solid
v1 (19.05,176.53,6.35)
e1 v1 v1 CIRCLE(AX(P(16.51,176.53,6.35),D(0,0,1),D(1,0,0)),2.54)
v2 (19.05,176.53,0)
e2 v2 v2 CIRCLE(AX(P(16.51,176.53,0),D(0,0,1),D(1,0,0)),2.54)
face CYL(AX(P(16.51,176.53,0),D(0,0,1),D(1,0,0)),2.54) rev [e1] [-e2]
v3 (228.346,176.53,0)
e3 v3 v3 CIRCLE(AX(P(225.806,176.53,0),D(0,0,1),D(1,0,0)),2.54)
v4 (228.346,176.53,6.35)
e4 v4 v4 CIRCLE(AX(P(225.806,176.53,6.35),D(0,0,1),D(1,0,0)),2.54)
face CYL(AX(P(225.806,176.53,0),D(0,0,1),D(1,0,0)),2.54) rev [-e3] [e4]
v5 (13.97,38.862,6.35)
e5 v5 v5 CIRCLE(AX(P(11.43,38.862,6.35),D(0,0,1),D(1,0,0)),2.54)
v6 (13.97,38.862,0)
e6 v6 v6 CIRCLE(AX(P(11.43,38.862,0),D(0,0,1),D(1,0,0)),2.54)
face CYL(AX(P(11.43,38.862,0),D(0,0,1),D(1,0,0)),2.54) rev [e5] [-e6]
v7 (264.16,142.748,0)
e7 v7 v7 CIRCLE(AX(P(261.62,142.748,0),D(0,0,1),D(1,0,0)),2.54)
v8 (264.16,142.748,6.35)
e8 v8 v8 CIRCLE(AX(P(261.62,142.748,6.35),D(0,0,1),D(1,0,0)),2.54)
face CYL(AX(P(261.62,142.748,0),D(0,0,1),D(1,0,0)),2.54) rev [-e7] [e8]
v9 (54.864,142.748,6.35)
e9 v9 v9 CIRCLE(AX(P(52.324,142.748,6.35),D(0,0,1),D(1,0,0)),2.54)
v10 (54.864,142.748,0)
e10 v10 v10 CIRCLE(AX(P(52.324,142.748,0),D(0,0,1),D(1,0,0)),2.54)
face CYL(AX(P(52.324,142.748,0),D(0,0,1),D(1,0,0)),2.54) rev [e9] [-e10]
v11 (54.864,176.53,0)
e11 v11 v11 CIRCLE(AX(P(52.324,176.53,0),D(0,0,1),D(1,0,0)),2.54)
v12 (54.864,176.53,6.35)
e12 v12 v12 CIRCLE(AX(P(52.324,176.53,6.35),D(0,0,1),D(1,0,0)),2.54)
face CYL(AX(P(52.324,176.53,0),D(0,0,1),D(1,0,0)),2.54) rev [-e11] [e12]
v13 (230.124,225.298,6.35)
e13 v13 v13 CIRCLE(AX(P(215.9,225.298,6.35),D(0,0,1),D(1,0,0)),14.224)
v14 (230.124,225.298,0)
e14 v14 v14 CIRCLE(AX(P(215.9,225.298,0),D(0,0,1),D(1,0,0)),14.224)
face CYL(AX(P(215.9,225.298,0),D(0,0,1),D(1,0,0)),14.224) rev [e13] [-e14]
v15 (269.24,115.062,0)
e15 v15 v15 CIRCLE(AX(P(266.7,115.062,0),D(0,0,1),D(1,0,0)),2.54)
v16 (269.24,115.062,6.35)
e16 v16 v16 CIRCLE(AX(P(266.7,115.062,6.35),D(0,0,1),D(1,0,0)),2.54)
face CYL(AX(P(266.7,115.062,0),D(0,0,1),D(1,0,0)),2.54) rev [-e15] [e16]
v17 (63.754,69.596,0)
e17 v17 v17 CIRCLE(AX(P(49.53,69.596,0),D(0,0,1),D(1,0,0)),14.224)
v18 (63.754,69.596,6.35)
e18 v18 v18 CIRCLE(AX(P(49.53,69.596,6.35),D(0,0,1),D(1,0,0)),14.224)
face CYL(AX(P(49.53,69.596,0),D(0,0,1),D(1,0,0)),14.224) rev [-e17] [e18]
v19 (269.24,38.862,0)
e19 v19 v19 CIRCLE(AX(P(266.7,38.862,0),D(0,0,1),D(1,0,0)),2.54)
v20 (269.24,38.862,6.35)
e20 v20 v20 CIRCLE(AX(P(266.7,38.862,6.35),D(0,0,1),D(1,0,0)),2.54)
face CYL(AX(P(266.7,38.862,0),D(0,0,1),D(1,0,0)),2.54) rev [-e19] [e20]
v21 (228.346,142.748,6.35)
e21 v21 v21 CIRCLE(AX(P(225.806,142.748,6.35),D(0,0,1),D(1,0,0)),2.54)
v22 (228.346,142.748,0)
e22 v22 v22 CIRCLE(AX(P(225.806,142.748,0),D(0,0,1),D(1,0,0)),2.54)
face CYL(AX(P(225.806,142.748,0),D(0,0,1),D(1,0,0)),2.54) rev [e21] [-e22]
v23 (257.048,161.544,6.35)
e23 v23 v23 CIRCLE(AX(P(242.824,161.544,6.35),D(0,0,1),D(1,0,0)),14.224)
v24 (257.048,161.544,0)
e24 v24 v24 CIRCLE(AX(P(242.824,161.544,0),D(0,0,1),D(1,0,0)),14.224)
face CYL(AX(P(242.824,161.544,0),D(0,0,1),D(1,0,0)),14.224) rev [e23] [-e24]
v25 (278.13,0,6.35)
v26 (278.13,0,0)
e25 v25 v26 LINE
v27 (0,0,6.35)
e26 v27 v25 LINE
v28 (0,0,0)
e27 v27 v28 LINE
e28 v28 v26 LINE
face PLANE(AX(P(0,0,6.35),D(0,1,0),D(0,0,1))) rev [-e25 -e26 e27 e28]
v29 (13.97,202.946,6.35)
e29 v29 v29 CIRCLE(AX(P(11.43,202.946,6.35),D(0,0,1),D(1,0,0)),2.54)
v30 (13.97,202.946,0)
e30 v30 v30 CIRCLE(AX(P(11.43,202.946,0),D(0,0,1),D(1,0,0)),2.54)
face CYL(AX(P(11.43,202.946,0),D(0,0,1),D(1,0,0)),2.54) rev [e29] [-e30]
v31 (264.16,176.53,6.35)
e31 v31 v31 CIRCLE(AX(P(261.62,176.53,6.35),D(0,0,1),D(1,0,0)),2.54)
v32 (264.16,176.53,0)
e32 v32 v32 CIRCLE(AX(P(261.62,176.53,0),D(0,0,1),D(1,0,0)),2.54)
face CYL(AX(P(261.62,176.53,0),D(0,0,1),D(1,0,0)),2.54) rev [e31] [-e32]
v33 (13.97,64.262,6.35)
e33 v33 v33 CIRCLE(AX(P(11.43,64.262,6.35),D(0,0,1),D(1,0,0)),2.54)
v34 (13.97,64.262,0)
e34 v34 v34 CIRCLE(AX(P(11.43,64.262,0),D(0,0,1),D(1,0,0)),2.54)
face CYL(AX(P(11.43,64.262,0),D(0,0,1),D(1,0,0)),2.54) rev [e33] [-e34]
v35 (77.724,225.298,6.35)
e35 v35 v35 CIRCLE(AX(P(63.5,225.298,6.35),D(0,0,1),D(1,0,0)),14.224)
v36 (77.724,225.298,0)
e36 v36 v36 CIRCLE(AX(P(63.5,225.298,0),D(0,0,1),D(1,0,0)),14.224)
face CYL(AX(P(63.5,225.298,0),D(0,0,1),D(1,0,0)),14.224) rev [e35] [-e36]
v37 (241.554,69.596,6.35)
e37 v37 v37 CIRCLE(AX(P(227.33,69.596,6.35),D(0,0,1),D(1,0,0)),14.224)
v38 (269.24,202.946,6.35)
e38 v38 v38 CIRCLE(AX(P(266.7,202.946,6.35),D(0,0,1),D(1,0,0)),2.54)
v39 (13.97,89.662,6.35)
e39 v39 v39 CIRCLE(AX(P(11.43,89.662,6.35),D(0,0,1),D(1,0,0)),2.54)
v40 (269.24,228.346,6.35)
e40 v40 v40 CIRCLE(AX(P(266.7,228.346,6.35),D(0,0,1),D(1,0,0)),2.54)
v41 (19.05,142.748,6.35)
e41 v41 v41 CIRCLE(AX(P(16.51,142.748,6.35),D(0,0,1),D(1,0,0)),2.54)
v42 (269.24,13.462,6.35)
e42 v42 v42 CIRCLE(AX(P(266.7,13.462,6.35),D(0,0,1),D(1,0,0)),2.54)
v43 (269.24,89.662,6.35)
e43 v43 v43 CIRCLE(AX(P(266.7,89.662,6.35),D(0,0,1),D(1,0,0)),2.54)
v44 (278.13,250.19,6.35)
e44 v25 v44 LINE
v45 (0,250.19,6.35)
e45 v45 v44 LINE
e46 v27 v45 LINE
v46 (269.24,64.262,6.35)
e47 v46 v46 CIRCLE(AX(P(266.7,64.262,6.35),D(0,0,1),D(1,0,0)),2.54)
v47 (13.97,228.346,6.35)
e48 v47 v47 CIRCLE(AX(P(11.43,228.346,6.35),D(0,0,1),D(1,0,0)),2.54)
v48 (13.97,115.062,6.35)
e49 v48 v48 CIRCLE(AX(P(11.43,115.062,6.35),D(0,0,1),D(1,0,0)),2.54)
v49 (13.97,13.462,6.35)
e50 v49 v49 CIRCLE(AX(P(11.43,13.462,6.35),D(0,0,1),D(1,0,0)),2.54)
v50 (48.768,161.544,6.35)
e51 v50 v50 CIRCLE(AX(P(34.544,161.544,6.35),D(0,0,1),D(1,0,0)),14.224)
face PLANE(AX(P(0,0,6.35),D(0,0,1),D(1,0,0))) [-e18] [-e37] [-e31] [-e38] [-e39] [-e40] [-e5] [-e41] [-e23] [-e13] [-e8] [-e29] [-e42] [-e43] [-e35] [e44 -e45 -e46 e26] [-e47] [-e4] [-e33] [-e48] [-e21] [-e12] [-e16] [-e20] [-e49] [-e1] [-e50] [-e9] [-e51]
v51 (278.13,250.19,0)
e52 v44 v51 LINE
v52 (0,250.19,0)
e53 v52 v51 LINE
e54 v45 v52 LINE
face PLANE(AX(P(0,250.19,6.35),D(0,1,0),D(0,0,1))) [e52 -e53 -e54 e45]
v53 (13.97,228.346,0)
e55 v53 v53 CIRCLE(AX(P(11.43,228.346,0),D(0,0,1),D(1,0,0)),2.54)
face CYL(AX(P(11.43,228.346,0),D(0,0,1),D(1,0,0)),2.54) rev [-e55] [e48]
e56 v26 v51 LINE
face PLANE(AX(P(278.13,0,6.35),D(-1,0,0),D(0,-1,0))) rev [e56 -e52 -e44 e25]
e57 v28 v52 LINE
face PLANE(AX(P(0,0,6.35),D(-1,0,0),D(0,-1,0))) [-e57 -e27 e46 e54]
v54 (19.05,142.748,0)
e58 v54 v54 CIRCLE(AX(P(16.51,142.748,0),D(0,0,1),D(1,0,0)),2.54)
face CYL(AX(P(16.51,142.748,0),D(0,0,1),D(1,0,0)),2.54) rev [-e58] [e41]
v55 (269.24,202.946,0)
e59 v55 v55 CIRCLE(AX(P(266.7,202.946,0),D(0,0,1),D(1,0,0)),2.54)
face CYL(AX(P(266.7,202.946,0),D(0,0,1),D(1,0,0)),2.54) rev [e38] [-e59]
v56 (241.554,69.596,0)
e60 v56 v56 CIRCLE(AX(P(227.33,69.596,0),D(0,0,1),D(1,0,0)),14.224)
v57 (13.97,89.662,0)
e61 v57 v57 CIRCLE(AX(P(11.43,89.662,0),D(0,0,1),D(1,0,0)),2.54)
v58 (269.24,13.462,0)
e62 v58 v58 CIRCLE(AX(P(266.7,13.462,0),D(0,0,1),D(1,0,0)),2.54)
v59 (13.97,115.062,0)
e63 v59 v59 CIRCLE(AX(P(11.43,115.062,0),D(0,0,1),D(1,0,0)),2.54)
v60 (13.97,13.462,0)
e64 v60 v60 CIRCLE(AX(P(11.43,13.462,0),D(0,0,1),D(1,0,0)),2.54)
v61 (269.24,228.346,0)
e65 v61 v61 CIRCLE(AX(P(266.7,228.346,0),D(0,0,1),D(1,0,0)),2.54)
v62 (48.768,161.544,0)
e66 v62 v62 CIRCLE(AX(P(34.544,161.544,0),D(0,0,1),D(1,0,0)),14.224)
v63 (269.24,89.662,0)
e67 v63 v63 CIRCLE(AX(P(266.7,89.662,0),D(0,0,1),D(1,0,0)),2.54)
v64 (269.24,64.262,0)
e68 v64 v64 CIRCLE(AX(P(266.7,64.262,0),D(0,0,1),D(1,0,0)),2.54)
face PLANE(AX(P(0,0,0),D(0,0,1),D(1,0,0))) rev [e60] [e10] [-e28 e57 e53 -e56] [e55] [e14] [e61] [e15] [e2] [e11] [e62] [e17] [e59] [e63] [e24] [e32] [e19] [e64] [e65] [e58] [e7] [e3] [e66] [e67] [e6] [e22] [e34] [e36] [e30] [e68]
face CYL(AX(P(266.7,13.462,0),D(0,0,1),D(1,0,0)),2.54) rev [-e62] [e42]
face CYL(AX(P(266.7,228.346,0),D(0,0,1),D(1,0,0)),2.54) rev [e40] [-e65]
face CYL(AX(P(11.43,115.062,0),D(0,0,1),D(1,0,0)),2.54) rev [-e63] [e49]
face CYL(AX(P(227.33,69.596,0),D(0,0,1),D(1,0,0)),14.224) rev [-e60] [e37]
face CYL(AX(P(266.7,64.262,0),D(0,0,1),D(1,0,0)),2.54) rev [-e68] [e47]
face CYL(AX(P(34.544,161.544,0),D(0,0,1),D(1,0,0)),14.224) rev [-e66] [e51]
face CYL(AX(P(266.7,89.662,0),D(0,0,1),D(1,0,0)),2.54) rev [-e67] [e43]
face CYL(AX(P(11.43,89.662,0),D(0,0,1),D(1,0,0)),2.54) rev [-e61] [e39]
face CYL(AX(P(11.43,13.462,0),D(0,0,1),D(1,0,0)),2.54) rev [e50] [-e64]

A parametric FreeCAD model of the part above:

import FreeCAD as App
import Part
import Sketcher
Q = App.Units.Quantity


def add_polygon(sketch, points):
    """Adds a closed chain of lines whose ends are joined by coincident constraints."""
    first, n = sketch.GeometryCount, len(points)
    for a, b in zip(points, points[1:] + points[:1]):
        sketch.addGeometry(Part.LineSegment(App.Vector(*a, 0), App.Vector(*b, 0)), False)
    for i in range(n):
        sketch.addConstraint(Sketcher.Constraint("Coincident", first + i, 2, first + (i + 1) % n, 1))

doc = App.newDocument("Part")
body = doc.addObject("PartDesign::Body", "Body")

# Sketch on XY plane
sketch1 = doc.addObject("Sketcher::SketchObject", "Sketch")
body.addObject(sketch1)
sketch1.AttachmentSupport = (doc.XY_Plane, [""])
sketch1.MapMode = "FlatFace"
add_polygon(sketch1, [(0, 250), (0, 0), (278, 0), (278, 250)])  # lines 0-3
sketch1.addConstraint(Sketcher.Constraint("Vertical", 0))
sketch1.addConstraint(Sketcher.Constraint("Horizontal", 1))
sketch1.addConstraint(Sketcher.Constraint("Vertical", 2))
sketch1.addConstraint(Sketcher.Constraint("Horizontal", 3))
sketch1.addConstraint(Sketcher.Constraint("Coincident", 0, 2, -1, 1))
sketch1.addConstraint(Sketcher.Constraint("DistanceX", 1, 1, 1, 2, Q("10.95 in")))
sketch1.addConstraint(Sketcher.Constraint("DistanceY", 0, 2, 0, 1, Q("9.85 in")))
pad1 = doc.addObject("PartDesign::Pad", "Pad")
body.addObject(pad1)
pad1.Profile = sketch1
pad1.Length = Q("0.25 in")

# Sketch on XY plane
sketch2 = doc.addObject("Sketcher::SketchObject", "Sketch001")
body.addObject(sketch2)
sketch2.AttachmentSupport = (doc.XY_Plane, [""])
sketch2.MapMode = "FlatFace"
sketch2.AttachmentOffset = App.Placement(App.Vector(0, 0, 0.25 * 25.4), App.Rotation())
sketch2.addGeometry(Part.Circle(App.Vector(64, 225, 0), App.Vector(0, 0, 1), 14), False)
sketch2.addGeometry(Part.Circle(App.Vector(216, 225, 0), App.Vector(0, 0, 1), 14), False)
sketch2.addGeometry(Part.Circle(App.Vector(35, 162, 0), App.Vector(0, 0, 1), 14), False)
sketch2.addGeometry(Part.Circle(App.Vector(243, 162, 0), App.Vector(0, 0, 1), 14), False)
sketch2.addGeometry(Part.Circle(App.Vector(50, 70, 0), App.Vector(0, 0, 1), 14), False)
sketch2.addGeometry(Part.Circle(App.Vector(227, 70, 0), App.Vector(0, 0, 1), 14), False)
sketch2.addConstraint(Sketcher.Constraint("Equal", 0, 1))
sketch2.addConstraint(Sketcher.Constraint("Equal", 1, 2))
sketch2.addConstraint(Sketcher.Constraint("Equal", 2, 3))
sketch2.addConstraint(Sketcher.Constraint("Equal", 3, 4))
sketch2.addConstraint(Sketcher.Constraint("Equal", 4, 5))
sketch2.addConstraint(Sketcher.Constraint("Horizontal", 0, 3, 1, 3))
sketch2.addConstraint(Sketcher.Constraint("Horizontal", 2, 3, 3, 3))
sketch2.addConstraint(Sketcher.Constraint("Horizontal", 4, 3, 5, 3))
sketch2.addConstraint(Sketcher.Constraint("Diameter", 0, Q("1.12 in")))
sketch2.addConstraint(Sketcher.Constraint("DistanceX", 0, 3, 1, 3, Q("6 in")))
sketch2.addConstraint(Sketcher.Constraint("DistanceX", 4, 3, 5, 3, Q("7 in")))
sketch2.addConstraint(Sketcher.Constraint("DistanceX", -1, 1, 0, 3, Q("2.5 in")))
sketch2.addConstraint(Sketcher.Constraint("DistanceX", 2, 3, 3, 3, Q("8.2 in")))
sketch2.addConstraint(Sketcher.Constraint("DistanceY", -1, 1, 0, 3, Q("8.87 in")))
sketch2.addConstraint(Sketcher.Constraint("DistanceX", -1, 1, 2, 3, Q("1.36 in")))
sketch2.addConstraint(Sketcher.Constraint("DistanceY", -1, 1, 2, 3, Q("6.36 in")))
sketch2.addConstraint(Sketcher.Constraint("DistanceX", -1, 1, 4, 3, Q("1.95 in")))
sketch2.addConstraint(Sketcher.Constraint("DistanceY", -1, 1, 4, 3, Q("2.74 in")))
pocket1 = doc.addObject("PartDesign::Pocket", "Pocket")
body.addObject(pocket1)
pocket1.Profile = sketch2
pocket1.Type = "ThroughAll"
pocket1.Midplane = True

# Sketch on XY plane
sketch3 = doc.addObject("Sketcher::SketchObject", "Sketch002")
body.addObject(sketch3)
sketch3.AttachmentSupport = (doc.XY_Plane, [""])
sketch3.MapMode = "FlatFace"
sketch3.AttachmentOffset = App.Placement(App.Vector(0, 0, 0.25 * 25.4), App.Rotation())
sketch3.addGeometry(Part.Circle(App.Vector(11.4, 228.3, 0), App.Vector(0, 0, 1), 2.5), False)
sketch3.addGeometry(Part.Circle(App.Vector(11.4, 202.9, 0), App.Vector(0, 0, 1), 2.5), False)
sketch3.addGeometry(Part.Circle(App.Vector(266.7, 202.9, 0), App.Vector(0, 0, 1), 2.5), False)
sketch3.addGeometry(Part.Circle(App.Vector(266.7, 228.3, 0), App.Vector(0, 0, 1), 2.5), False)
sketch3.addGeometry(Part.Circle(App.Vector(11.4, 115.1, 0), App.Vector(0, 0, 1), 2.5), False)
sketch3.addGeometry(Part.Circle(App.Vector(11.4, 89.7, 0), App.Vector(0, 0, 1), 2.5), False)
sketch3.addGeometry(Part.Circle(App.Vector(11.4, 64.3, 0), App.Vector(0, 0, 1), 2.5), False)
sketch3.addGeometry(Part.Circle(App.Vector(11.4, 38.9, 0), App.Vector(0, 0, 1), 2.5), False)
sketch3.addGeometry(Part.Circle(App.Vector(11.4, 13.5, 0), App.Vector(0, 0, 1), 2.5), False)
sketch3.addGeometry(Part.Circle(App.Vector(266.7, 115.1, 0), App.Vector(0, 0, 1), 2.5), False)
sketch3.addGeometry(Part.Circle(App.Vector(266.7, 89.7, 0), App.Vector(0, 0, 1), 2.5), False)
sketch3.addGeometry(Part.Circle(App.Vector(266.7, 64.3, 0), App.Vector(0, 0, 1), 2.5), False)
sketch3.addGeometry(Part.Circle(App.Vector(266.7, 38.9, 0), App.Vector(0, 0, 1), 2.5), False)
sketch3.addGeometry(Part.Circle(App.Vector(266.7, 13.5, 0), App.Vector(0, 0, 1), 2.5), False)
sketch3.addConstraint(Sketcher.Constraint("Equal", 0, 1))
sketch3.addConstraint(Sketcher.Constraint("Equal", 1, 2))
sketch3.addConstraint(Sketcher.Constraint("Equal", 2, 3))
sketch3.addConstraint(Sketcher.Constraint("Equal", 3, 4))
sketch3.addConstraint(Sketcher.Constraint("Equal", 4, 5))
sketch3.addConstraint(Sketcher.Constraint("Equal", 5, 6))
sketch3.addConstraint(Sketcher.Constraint("Equal", 6, 7))
sketch3.addConstraint(Sketcher.Constraint("Equal", 7, 8))
sketch3.addConstraint(Sketcher.Constraint("Equal", 8, 9))
sketch3.addConstraint(Sketcher.Constraint("Equal", 9, 10))
sketch3.addConstraint(Sketcher.Constraint("Equal", 10, 11))
sketch3.addConstraint(Sketcher.Constraint("Equal", 11, 12))
sketch3.addConstraint(Sketcher.Constraint("Equal", 12, 13))
sketch3.addConstraint(Sketcher.Constraint("Horizontal", 1, 3, 2, 3))
sketch3.addConstraint(Sketcher.Constraint("Horizontal", 0, 3, 3, 3))
sketch3.addConstraint(Sketcher.Constraint("Horizontal", 4, 3, 9, 3))
sketch3.addConstraint(Sketcher.Constraint("Horizontal", 5, 3, 10, 3))
sketch3.addConstraint(Sketcher.Constraint("Horizontal", 6, 3, 11, 3))
sketch3.addConstraint(Sketcher.Constraint("Horizontal", 7, 3, 12, 3))
sketch3.addConstraint(Sketcher.Constraint("Horizontal", 8, 3, 13, 3))
sketch3.addConstraint(Sketcher.Constraint("Vertical", 0, 3, 1, 3))
sketch3.addConstraint(Sketcher.Constraint("Vertical", 2, 3, 3, 3))
sketch3.addConstraint(Sketcher.Constraint("Vertical", 1, 3, 4, 3))
sketch3.addConstraint(Sketcher.Constraint("Vertical", 4, 3, 5, 3))
sketch3.addConstraint(Sketcher.Constraint("Vertical", 5, 3, 6, 3))
sketch3.addConstraint(Sketcher.Constraint("Vertical", 6, 3, 7, 3))
sketch3.addConstraint(Sketcher.Constraint("Vertical", 7, 3, 8, 3))
sketch3.addConstraint(Sketcher.Constraint("Vertical", 3, 3, 9, 3))
sketch3.addConstraint(Sketcher.Constraint("Vertical", 9, 3, 10, 3))
sketch3.addConstraint(Sketcher.Constraint("Vertical", 10, 3, 11, 3))
sketch3.addConstraint(Sketcher.Constraint("Vertical", 11, 3, 12, 3))
sketch3.addConstraint(Sketcher.Constraint("Vertical", 12, 3, 13, 3))
sketch3.addConstraint(Sketcher.Constraint("Diameter", 0, Q("0.2 in")))
sketch3.addConstraint(Sketcher.Constraint("DistanceY", 1, 3, 0, 3, Q("1 in")))
sketch3.addConstraint(Sketcher.Constraint("DistanceY", 5, 3, 4, 3, Q("1 in")))
sketch3.addConstraint(Sketcher.Constraint("DistanceY", 6, 3, 5, 3, Q("1 in")))
sketch3.addConstraint(Sketcher.Constraint("DistanceY", 7, 3, 6, 3, Q("1 in")))
sketch3.addConstraint(Sketcher.Constraint("DistanceY", 8, 3, 7, 3, Q("1 in")))
sketch3.addConstraint(Sketcher.Constraint("DistanceX", -1, 1, 2, 3, Q("10.5 in")))
sketch3.addConstraint(Sketcher.Constraint("DistanceX", -1, 1, 0, 3, Q("0.45 in")))
sketch3.addConstraint(Sketcher.Constraint("DistanceY", -1, 1, 0, 3, Q("8.99 in")))
sketch3.addConstraint(Sketcher.Constraint("DistanceY", -1, 1, 4, 3, Q("4.53 in")))
pocket2 = doc.addObject("PartDesign::Pocket", "Pocket001")
body.addObject(pocket2)
pocket2.Profile = sketch3
pocket2.Type = "ThroughAll"
pocket2.Midplane = True

# Sketch on XY plane
sketch4 = doc.addObject("Sketcher::SketchObject", "Sketch003")
body.addObject(sketch4)
sketch4.AttachmentSupport = (doc.XY_Plane, [""])
sketch4.MapMode = "FlatFace"
sketch4.AttachmentOffset = App.Placement(App.Vector(0, 0, 0.25 * 25.4), App.Rotation())
sketch4.addGeometry(Part.Circle(App.Vector(16.5, 176.5, 0), App.Vector(0, 0, 1), 2.5), False)
sketch4.addGeometry(Part.Circle(App.Vector(16.5, 142.7, 0), App.Vector(0, 0, 1), 2.5), False)
sketch4.addGeometry(Part.Circle(App.Vector(52.3, 142.7, 0), App.Vector(0, 0, 1), 2.5), False)
sketch4.addGeometry(Part.Circle(App.Vector(52.3, 176.5, 0), App.Vector(0, 0, 1), 2.5), False)
sketch4.addGeometry(Part.Circle(App.Vector(225.8, 176.5, 0), App.Vector(0, 0, 1), 2.5), False)
sketch4.addGeometry(Part.Circle(App.Vector(261.6, 176.5, 0), App.Vector(0, 0, 1), 2.5), False)
sketch4.addGeometry(Part.Circle(App.Vector(225.8, 142.7, 0), App.Vector(0, 0, 1), 2.5), False)
sketch4.addGeometry(Part.Circle(App.Vector(261.6, 142.7, 0), App.Vector(0, 0, 1), 2.5), False)
sketch4.addConstraint(Sketcher.Constraint("Equal", 0, 1))
sketch4.addConstraint(Sketcher.Constraint("Equal", 1, 2))
sketch4.addConstraint(Sketcher.Constraint("Equal", 2, 3))
sketch4.addConstraint(Sketcher.Constraint("Equal", 3, 4))
sketch4.addConstraint(Sketcher.Constraint("Equal", 4, 5))
sketch4.addConstraint(Sketcher.Constraint("Equal", 5, 6))
sketch4.addConstraint(Sketcher.Constraint("Equal", 6, 7))
sketch4.addConstraint(Sketcher.Constraint("Horizontal", 1, 3, 2, 3))
sketch4.addConstraint(Sketcher.Constraint("Horizontal", 0, 3, 3, 3))
sketch4.addConstraint(Sketcher.Constraint("Horizontal", 3, 3, 4, 3))
sketch4.addConstraint(Sketcher.Constraint("Horizontal", 4, 3, 5, 3))
sketch4.addConstraint(Sketcher.Constraint("Horizontal", 2, 3, 6, 3))
sketch4.addConstraint(Sketcher.Constraint("Horizontal", 6, 3, 7, 3))
sketch4.addConstraint(Sketcher.Constraint("Vertical", 0, 3, 1, 3))
sketch4.addConstraint(Sketcher.Constraint("Vertical", 2, 3, 3, 3))
sketch4.addConstraint(Sketcher.Constraint("Vertical", 4, 3, 6, 3))
sketch4.addConstraint(Sketcher.Constraint("Vertical", 5, 3, 7, 3))
sketch4.addConstraint(Sketcher.Constraint("Diameter", 0, Q("0.2 in")))
sketch4.addConstraint(Sketcher.Constraint("DistanceX", -1, 1, 5, 3, Q("10.3 in")))
sketch4.addConstraint(Sketcher.Constraint("DistanceX", -1, 1, 0, 3, Q("0.65 in")))
sketch4.addConstraint(Sketcher.Constraint("DistanceY", -1, 1, 0, 3, Q("6.95 in")))
sketch4.addConstraint(Sketcher.Constraint("DistanceY", -1, 1, 1, 3, Q("5.62 in")))
sketch4.addConstraint(Sketcher.Constraint("DistanceX", -1, 1, 2, 3, Q("2.06 in")))
sketch4.addConstraint(Sketcher.Constraint("DistanceX", -1, 1, 4, 3, Q("8.89 in")))
pocket3 = doc.addObject("PartDesign::Pocket", "Pocket002")
body.addObject(pocket3)
pocket3.Profile = sketch4
pocket3.Type = "ThroughAll"
pocket3.Midplane = True

doc.recompute()
